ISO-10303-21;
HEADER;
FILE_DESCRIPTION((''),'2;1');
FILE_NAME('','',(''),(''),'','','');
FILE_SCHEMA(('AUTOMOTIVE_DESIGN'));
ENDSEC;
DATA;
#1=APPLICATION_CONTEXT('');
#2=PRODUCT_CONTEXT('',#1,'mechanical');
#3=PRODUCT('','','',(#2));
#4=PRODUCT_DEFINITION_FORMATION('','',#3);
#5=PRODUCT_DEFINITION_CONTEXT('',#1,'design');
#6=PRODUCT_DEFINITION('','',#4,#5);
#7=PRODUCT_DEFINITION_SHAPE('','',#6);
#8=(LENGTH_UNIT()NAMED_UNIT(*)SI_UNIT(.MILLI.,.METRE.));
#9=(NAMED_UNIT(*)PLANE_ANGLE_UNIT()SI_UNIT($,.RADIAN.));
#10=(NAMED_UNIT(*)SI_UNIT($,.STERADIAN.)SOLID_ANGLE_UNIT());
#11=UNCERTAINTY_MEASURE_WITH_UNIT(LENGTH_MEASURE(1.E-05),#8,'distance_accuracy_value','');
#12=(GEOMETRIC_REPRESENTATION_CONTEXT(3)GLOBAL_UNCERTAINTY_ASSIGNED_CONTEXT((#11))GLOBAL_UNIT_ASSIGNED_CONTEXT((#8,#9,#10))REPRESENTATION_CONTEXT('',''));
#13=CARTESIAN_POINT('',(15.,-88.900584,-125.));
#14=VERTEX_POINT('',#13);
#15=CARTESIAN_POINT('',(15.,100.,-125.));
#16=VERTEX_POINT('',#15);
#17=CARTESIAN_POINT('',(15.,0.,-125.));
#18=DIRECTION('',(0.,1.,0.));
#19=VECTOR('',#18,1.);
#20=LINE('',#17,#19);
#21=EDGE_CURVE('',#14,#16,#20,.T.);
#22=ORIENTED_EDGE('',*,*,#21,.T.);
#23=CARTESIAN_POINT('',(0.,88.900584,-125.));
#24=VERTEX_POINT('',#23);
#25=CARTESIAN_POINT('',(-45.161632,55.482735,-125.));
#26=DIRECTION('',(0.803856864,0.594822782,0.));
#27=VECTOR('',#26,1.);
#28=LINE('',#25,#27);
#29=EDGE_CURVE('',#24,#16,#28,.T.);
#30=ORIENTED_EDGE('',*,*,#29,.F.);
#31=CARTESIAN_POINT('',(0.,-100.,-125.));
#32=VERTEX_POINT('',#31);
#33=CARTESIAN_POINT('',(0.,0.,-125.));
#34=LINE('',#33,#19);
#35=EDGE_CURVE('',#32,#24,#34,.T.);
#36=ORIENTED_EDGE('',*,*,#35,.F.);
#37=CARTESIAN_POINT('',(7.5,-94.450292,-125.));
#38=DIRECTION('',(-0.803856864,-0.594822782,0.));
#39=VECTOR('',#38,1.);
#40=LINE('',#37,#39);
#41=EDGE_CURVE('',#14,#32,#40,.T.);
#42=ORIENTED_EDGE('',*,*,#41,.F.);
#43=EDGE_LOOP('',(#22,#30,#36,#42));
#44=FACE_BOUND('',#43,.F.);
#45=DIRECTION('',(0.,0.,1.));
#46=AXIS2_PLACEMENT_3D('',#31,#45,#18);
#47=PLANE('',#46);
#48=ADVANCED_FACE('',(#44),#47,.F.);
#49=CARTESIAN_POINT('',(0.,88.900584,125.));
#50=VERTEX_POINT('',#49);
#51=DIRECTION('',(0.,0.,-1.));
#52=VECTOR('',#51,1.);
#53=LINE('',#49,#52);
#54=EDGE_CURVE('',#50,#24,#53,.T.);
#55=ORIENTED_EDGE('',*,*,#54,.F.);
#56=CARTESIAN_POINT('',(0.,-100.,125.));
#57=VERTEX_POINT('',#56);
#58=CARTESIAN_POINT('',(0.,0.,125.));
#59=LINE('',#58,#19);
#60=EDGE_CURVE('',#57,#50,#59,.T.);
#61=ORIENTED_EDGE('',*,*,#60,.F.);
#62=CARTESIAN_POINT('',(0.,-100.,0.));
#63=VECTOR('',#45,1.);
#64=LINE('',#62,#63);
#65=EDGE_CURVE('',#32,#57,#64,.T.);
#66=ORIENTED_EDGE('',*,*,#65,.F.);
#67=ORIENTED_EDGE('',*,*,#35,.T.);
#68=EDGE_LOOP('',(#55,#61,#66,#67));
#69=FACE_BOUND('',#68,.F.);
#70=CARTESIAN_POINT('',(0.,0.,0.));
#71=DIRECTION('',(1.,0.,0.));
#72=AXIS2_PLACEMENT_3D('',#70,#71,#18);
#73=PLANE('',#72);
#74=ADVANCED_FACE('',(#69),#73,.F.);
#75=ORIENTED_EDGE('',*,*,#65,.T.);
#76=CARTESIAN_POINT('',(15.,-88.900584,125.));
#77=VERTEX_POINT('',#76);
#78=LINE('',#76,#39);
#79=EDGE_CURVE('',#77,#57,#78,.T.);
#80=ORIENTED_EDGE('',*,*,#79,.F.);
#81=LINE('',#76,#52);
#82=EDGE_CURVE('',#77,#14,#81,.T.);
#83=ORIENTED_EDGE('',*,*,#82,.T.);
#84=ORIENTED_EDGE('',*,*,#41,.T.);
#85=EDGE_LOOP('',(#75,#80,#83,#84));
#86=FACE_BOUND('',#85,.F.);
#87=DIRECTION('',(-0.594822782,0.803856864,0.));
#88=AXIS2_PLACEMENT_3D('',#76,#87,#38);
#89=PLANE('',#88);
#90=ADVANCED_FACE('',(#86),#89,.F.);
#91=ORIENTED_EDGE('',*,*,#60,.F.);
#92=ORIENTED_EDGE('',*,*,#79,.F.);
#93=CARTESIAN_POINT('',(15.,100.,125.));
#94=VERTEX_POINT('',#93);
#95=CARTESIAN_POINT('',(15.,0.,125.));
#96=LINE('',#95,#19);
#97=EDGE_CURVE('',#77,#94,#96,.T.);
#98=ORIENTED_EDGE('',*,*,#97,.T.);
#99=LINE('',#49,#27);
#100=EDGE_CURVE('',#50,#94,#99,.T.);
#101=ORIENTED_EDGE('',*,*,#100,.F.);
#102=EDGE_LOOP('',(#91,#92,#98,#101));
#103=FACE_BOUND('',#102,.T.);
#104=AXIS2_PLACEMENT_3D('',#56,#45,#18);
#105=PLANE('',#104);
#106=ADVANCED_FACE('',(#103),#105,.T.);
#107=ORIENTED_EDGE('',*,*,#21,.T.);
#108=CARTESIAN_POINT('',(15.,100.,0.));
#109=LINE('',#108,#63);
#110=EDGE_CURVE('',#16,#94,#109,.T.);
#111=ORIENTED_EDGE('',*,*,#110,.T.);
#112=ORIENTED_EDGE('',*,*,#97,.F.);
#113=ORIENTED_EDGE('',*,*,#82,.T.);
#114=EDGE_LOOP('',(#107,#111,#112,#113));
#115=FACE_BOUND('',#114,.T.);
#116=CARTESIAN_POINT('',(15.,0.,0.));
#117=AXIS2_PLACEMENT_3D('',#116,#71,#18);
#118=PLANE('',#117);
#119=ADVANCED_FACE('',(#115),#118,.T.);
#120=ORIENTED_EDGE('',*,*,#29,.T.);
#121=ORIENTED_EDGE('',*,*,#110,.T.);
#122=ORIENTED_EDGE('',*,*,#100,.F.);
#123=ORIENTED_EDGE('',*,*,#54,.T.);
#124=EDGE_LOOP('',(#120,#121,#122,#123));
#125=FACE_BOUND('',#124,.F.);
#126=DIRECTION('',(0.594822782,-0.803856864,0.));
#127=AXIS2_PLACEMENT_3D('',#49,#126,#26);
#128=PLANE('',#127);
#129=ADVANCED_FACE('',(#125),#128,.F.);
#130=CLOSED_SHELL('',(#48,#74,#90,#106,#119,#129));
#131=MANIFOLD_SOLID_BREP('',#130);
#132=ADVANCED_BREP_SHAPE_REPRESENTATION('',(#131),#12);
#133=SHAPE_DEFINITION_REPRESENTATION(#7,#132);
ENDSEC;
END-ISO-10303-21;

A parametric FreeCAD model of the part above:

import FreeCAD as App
import Part
import Sketcher

V = App.Vector
Q = App.Units.Quantity


def add_polygon(sketch, points):
    """Adds a closed chain of lines whose ends are joined by coincident constraints."""
    first, n = sketch.GeometryCount, len(points)
    for a, b in zip(points, points[1:] + points[:1]):
        sketch.addGeometry(Part.LineSegment(App.Vector(*a, 0), App.Vector(*b, 0)), False)
    for i in range(n):
        sketch.addConstraint(Sketcher.Constraint("Coincident", first + i, 2, first + (i + 1) % n, 1))

doc = App.newDocument("Part")
body = doc.addObject("PartDesign::Body", "Body")

# Sketch on YZ plane
sketch1 = body.newObject("Sketcher::SketchObject", "Sketch")
sketch1.AttachmentSupport = (doc.getObject("YZ_Plane"), [""])
sketch1.MapMode = "FlatFace"
add_polygon(sketch1, [(-100, 125), (-100, -125), (100, -125), (100, 125)])  # lines 0-3
sketch1.addConstraint([
    Sketcher.Constraint("Vertical", 0),
    Sketcher.Constraint("Horizontal", 1),
    Sketcher.Constraint("Vertical", 2),
    Sketcher.Constraint("Horizontal", 3),
    Sketcher.Constraint("Symmetric", 0, 2, 2, 2, -1, 1),
    Sketcher.Constraint("DistanceX", 1, 1, 1, 2, 200.0),
    Sketcher.Constraint("DistanceY", 0, 2, 0, 1, 250.0),
])
pad1 = body.newObject("PartDesign::Pad", "Pad")
pad1.Profile = sketch1
pad1.Length = 15

# Sketch on XY plane
sketch2 = body.newObject("Sketcher::SketchObject", "Sketch001")
sketch2.AttachmentSupport = (doc.getObject("XY_Plane"), [""])
sketch2.MapMode = "FlatFace"
sketch2.AttachmentOffset = App.Placement(V(0, 0, 125), App.Rotation())
add_polygon(sketch2, [(0, 100), (0, 89), (15, 100)])  # lines 0-2
add_polygon(sketch2, [(15, -89), (0, -100), (15, -100)])  # lines 3-5
sketch2.addConstraint([
    Sketcher.Constraint("Vertical", 0),
    Sketcher.Constraint("Horizontal", 2),
    Sketcher.Constraint("Horizontal", 4),
    Sketcher.Constraint("Vertical", 5),
    Sketcher.Constraint("Symmetric", 2, 2, 3, 2, -1, 1),
    Sketcher.Constraint("PointOnObject", 0, 2, -2),
    Sketcher.Constraint("Parallel", 1, 3),
    Sketcher.Constraint("Vertical", 1, 2, 4, 2),
    Sketcher.Constraint("DistanceX", 2, 2, 2, 1, 15.0),
    Sketcher.Constraint("DistanceY", -1, 1, 1, 2, 100.0),
    Sketcher.Constraint("Angle", 1, Q("36.5 deg")),
])
pocket1 = body.newObject("PartDesign::Pocket", "Pocket")
pocket1.Profile = sketch2
pocket1.Length = 999

doc.recompute()
